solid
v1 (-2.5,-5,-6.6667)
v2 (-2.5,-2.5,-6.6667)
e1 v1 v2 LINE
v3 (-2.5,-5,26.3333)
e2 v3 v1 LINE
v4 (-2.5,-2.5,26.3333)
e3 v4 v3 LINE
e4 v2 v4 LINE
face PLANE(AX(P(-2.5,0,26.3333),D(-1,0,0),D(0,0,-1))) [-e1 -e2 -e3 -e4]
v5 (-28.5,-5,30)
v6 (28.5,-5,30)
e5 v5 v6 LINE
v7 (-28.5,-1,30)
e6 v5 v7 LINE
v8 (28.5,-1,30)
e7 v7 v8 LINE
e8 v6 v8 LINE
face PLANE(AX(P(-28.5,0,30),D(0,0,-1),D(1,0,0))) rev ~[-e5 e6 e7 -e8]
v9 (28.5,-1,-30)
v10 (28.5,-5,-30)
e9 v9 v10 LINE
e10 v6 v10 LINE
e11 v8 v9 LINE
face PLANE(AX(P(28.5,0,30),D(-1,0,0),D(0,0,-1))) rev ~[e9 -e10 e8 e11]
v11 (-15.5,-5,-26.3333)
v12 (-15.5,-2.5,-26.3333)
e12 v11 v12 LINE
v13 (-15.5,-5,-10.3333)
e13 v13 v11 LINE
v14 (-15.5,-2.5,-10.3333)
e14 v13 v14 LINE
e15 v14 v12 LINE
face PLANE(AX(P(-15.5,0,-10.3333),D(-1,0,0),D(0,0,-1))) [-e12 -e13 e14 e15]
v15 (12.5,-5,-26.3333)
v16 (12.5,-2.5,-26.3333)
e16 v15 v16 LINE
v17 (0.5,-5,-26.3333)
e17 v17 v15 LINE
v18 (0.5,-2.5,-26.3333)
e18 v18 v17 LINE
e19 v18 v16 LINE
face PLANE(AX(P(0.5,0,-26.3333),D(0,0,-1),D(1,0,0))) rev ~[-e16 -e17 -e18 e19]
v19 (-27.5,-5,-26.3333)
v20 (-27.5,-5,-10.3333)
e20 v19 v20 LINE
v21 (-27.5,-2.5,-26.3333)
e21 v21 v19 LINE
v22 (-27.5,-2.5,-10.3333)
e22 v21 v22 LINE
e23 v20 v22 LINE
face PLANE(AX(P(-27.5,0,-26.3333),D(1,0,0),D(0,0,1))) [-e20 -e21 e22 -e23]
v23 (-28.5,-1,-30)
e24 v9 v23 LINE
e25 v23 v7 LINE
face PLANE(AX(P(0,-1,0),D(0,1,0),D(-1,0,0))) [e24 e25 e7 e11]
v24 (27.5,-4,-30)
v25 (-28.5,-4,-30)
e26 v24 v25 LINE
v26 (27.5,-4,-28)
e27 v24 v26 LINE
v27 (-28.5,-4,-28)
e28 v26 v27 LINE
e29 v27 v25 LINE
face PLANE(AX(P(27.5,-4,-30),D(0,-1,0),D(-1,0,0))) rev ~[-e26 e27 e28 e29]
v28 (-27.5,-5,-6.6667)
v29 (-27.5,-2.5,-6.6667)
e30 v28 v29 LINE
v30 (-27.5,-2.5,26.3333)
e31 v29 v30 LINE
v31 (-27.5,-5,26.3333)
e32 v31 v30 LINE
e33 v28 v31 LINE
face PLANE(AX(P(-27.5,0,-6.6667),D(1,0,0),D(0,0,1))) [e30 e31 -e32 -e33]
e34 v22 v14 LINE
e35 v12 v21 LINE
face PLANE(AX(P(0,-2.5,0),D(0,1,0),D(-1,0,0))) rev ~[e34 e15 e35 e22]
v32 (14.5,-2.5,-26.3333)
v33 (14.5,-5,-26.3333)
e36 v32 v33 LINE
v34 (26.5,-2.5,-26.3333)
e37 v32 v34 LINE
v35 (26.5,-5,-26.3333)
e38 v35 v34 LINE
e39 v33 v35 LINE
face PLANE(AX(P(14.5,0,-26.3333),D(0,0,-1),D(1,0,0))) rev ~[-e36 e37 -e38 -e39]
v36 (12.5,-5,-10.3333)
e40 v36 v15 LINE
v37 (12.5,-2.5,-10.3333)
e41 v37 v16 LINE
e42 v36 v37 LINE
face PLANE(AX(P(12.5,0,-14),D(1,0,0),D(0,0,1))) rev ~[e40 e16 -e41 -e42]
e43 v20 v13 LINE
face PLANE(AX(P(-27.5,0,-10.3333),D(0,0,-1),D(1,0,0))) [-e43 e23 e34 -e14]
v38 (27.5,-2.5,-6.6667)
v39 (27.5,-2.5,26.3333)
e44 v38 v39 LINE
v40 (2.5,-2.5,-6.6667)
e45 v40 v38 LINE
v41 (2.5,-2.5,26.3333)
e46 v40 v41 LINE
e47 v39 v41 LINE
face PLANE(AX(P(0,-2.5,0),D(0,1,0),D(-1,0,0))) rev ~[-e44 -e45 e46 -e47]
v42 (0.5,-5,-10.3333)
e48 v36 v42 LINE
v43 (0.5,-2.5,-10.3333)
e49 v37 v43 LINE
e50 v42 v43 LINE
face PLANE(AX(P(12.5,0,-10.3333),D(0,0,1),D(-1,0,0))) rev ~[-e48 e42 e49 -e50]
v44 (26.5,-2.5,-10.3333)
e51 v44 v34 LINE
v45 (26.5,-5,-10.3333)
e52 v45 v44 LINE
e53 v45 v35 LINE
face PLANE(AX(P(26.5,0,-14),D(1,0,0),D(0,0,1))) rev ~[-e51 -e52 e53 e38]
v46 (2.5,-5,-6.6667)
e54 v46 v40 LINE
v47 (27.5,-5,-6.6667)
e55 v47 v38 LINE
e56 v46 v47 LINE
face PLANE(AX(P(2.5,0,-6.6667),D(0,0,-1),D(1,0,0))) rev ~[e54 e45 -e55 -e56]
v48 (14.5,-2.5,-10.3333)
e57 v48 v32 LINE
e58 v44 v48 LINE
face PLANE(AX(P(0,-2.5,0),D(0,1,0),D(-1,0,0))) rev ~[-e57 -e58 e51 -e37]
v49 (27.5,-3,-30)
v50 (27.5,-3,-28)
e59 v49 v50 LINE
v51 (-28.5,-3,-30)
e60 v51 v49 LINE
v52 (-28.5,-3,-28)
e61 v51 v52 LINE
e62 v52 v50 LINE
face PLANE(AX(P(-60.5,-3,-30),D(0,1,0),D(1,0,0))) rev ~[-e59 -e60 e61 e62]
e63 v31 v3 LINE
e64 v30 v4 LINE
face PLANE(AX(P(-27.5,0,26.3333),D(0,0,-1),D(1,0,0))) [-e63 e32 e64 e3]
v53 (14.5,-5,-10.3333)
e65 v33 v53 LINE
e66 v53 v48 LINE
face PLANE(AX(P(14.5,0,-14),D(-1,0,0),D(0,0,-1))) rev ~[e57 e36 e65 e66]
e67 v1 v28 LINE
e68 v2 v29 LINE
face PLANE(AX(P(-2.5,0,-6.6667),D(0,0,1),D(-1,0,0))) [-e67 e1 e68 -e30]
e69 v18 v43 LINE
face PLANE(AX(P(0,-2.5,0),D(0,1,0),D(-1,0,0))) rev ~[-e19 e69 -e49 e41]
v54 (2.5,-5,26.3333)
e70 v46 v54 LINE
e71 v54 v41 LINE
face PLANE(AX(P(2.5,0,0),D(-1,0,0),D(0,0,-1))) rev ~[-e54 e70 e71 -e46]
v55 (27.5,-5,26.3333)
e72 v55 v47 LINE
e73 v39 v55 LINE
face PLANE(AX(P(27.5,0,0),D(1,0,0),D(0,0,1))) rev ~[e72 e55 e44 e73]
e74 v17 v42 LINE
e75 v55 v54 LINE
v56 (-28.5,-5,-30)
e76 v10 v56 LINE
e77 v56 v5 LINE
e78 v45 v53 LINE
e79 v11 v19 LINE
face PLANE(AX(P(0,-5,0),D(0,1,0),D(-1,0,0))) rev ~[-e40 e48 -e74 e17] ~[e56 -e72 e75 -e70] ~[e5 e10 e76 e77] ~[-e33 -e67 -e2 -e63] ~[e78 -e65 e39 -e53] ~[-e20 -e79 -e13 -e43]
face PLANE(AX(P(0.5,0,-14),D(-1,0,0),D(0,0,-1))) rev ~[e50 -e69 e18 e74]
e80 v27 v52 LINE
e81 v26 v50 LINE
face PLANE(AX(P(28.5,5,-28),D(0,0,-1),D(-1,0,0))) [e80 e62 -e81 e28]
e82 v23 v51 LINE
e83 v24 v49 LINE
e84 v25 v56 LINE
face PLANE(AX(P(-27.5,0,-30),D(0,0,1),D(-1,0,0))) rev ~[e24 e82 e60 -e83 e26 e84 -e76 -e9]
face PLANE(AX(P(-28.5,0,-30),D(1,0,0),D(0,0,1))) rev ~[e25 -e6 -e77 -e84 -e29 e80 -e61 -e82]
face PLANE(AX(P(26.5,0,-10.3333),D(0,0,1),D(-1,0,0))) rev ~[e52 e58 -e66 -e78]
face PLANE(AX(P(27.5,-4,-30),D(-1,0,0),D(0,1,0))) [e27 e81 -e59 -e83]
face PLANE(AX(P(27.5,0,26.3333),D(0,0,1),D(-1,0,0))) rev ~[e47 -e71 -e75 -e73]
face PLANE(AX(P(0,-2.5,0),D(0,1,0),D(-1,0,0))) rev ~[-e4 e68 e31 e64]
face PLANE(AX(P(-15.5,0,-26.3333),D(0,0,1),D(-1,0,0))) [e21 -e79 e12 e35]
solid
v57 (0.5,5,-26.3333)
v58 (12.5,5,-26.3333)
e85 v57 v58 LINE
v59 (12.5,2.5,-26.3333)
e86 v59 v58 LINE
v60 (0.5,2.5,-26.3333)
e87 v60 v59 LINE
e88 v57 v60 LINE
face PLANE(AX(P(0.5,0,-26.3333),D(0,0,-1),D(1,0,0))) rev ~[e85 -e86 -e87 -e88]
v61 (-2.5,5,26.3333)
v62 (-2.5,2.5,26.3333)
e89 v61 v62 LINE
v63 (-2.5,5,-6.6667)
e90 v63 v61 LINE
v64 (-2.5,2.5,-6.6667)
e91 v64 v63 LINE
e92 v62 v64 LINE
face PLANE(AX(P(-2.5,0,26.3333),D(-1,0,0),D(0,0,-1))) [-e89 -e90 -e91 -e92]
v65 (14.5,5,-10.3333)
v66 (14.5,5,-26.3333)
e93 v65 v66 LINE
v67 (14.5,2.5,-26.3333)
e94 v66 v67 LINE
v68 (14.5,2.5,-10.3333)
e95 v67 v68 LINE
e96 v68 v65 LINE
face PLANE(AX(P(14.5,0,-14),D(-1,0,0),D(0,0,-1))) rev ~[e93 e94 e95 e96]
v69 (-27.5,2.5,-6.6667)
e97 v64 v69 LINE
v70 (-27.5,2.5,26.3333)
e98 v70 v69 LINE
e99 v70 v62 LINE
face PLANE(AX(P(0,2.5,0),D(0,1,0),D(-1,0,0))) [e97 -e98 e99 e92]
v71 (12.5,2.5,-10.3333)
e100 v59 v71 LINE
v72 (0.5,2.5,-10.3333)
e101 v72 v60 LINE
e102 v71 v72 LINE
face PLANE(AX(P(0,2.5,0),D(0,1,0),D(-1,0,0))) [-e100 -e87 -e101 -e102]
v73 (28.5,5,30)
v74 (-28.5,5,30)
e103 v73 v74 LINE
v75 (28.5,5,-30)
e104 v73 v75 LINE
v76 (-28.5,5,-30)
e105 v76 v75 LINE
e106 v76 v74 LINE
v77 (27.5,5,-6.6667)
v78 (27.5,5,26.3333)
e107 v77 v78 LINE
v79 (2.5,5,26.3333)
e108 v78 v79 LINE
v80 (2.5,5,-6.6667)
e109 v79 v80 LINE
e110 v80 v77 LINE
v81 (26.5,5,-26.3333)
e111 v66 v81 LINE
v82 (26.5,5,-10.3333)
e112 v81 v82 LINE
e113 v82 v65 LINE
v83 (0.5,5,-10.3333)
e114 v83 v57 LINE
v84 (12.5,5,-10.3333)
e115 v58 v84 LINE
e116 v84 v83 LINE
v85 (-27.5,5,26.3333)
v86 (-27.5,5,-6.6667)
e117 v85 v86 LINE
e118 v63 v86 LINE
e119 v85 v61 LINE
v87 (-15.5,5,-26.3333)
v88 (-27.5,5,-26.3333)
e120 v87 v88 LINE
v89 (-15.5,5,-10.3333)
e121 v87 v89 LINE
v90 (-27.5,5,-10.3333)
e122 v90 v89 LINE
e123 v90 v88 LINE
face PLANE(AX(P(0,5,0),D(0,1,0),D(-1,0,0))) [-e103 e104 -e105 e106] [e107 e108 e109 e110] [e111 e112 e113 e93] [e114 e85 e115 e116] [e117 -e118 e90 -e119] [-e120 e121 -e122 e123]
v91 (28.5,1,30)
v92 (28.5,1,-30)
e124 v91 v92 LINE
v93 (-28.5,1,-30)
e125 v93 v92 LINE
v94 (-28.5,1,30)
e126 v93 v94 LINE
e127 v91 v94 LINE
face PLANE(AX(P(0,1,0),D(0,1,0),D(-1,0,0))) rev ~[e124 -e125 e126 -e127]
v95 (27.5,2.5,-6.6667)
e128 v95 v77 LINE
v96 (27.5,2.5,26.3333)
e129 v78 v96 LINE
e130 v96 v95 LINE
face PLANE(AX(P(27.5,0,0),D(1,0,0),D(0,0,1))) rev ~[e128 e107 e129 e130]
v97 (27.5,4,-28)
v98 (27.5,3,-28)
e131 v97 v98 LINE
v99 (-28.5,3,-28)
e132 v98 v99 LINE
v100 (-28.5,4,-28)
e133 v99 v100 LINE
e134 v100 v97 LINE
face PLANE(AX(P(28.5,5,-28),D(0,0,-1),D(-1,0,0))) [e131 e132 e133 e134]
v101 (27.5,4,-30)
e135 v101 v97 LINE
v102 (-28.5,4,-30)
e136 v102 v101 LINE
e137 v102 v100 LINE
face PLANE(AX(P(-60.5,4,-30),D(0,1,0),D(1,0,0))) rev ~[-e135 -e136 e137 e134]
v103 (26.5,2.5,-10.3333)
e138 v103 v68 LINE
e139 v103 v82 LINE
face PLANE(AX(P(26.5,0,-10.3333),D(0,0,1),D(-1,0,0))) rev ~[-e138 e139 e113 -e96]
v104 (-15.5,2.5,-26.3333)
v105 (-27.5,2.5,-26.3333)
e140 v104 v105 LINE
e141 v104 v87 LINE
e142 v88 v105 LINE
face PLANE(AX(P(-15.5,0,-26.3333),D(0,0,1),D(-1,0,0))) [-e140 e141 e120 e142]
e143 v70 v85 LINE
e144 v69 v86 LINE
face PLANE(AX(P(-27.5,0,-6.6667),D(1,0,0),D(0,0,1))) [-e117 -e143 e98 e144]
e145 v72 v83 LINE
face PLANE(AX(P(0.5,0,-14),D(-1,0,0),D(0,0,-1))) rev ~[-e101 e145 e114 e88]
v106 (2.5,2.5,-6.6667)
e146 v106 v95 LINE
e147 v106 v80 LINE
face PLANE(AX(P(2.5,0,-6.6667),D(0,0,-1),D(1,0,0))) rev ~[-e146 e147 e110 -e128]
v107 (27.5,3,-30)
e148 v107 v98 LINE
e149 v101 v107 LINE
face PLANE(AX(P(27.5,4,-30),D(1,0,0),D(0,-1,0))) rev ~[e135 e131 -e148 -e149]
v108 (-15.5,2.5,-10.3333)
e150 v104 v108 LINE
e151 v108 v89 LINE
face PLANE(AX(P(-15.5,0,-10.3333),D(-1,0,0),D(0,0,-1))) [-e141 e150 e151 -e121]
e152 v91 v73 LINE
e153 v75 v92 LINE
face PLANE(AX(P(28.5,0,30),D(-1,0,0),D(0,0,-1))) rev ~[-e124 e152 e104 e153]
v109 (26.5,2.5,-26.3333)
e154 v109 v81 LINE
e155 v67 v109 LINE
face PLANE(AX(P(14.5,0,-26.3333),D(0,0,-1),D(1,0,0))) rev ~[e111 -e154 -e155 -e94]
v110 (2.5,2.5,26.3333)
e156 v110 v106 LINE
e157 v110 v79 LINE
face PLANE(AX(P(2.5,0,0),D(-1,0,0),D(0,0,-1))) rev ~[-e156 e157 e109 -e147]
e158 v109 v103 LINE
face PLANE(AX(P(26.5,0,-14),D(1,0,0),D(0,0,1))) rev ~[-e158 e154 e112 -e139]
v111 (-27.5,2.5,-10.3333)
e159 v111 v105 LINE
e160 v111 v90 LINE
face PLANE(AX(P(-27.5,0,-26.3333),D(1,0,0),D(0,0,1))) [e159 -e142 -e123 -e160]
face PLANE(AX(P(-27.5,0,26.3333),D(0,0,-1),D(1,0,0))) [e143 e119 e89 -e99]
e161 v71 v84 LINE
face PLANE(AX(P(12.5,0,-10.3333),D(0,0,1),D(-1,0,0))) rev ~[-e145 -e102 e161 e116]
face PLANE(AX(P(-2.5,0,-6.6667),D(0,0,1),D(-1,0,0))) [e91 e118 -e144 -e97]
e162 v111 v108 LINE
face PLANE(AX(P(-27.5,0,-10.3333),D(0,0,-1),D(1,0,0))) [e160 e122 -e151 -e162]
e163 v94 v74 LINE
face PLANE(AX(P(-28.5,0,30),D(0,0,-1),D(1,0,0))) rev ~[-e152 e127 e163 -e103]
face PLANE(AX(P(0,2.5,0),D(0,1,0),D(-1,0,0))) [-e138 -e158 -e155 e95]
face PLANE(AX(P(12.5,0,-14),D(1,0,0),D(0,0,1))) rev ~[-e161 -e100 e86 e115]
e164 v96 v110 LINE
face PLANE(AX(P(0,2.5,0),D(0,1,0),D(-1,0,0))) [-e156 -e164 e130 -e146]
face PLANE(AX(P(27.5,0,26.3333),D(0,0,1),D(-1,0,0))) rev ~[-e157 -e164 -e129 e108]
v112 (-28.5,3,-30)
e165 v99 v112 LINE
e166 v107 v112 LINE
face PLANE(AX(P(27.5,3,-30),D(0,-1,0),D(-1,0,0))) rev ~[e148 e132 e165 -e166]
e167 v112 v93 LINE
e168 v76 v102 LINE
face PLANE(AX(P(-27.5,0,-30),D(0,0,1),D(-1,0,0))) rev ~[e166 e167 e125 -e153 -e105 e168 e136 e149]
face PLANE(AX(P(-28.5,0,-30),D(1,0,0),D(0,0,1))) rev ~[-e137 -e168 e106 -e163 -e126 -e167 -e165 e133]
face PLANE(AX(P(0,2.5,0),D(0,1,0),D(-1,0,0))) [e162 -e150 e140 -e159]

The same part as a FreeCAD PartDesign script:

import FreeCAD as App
import Part
import Sketcher
from FreeCAD import Vector


def add_polygon(sketch, points):
    """Adds a closed chain of lines whose ends are joined by coincident constraints."""
    first, n = sketch.GeometryCount, len(points)
    for a, b in zip(points, points[1:] + points[:1]):
        sketch.addGeometry(Part.LineSegment(App.Vector(*a, 0), App.Vector(*b, 0)), False)
    for i in range(n):
        sketch.addConstraint(Sketcher.Constraint("Coincident", first + i, 2, first + (i + 1) % n, 1))

doc = App.newDocument("Part")
body = doc.addObject("PartDesign::Body", "Body")
body.AllowCompound = True

# Sketch on XZ plane
sketch1 = body.newObject("Sketcher::SketchObject", "Sketch")
sketch1.AttachmentSupport = (doc.getObject("XZ_Plane"), [""])
sketch1.MapMode = "FlatFace"
add_polygon(sketch1, [(-28, -30), (-28, 30), (28, 30), (28, -30)])  # lines 0-3
add_polygon(sketch1, [(-28, -26), (-16, -26), (-16, -10), (-28, -10)])  # lines 4-7
add_polygon(sketch1, [(0, -26), (12, -26), (12, -10), (0, -10)])  # lines 8-11
add_polygon(sketch1, [(14, -26), (26, -26), (26, -10), (14, -10)])  # lines 12-15
add_polygon(sketch1, [(28, 26), (2, 26), (2, -7), (28, -7)])  # lines 16-19
add_polygon(sketch1, [(-2, 26), (-28, 26), (-28, -7), (-2, -7)])  # lines 20-23
sketch1.addConstraint([
    Sketcher.Constraint("Vertical", 0),
    Sketcher.Constraint("Horizontal", 1),
    Sketcher.Constraint("Vertical", 2),
    Sketcher.Constraint("Horizontal", 3),
    Sketcher.Constraint("Horizontal", 4),
    Sketcher.Constraint("Vertical", 5),
    Sketcher.Constraint("Horizontal", 6),
    Sketcher.Constraint("Vertical", 7),
    Sketcher.Constraint("Horizontal", 8),
    Sketcher.Constraint("Vertical", 9),
    Sketcher.Constraint("Horizontal", 10),
    Sketcher.Constraint("Vertical", 11),
    Sketcher.Constraint("Horizontal", 12),
    Sketcher.Constraint("Vertical", 13),
    Sketcher.Constraint("Horizontal", 14),
    Sketcher.Constraint("Vertical", 15),
    Sketcher.Constraint("Horizontal", 16),
    Sketcher.Constraint("Vertical", 17),
    Sketcher.Constraint("Horizontal", 18),
    Sketcher.Constraint("Vertical", 19),
    Sketcher.Constraint("Horizontal", 20),
    Sketcher.Constraint("Vertical", 21),
    Sketcher.Constraint("Horizontal", 22),
    Sketcher.Constraint("Vertical", 23),
    Sketcher.Constraint("Symmetric", 0, 2, 2, 2, -1, 1),
    Sketcher.Constraint("Symmetric", 7, 2, 19, 2, -1, 1),
    Sketcher.Constraint("Symmetric", 19, 2, 20, 2, -2),
    Sketcher.Constraint("Symmetric", 17, 2, 22, 2, -2),
    Sketcher.Constraint("Horizontal", 7, 2, 8, 2),
    Sketcher.Constraint("Horizontal", 6, 2, 9, 2),
    Sketcher.Constraint("Horizontal", 11, 2, 12, 2),
    Sketcher.Constraint("Horizontal", 10, 2, 13, 2),
    Sketcher.Constraint("Equal", 6, 8),
    Sketcher.Constraint("Equal", 10, 12),
    Sketcher.Constraint("DistanceX", 1, 1, 1, 2, 57.0),
    Sketcher.Constraint("DistanceX", 4, 1, 4, 2, 12.0),
    Sketcher.Constraint("DistanceX", 16, 2, 16, 1, 25.0),
    Sketcher.Constraint("DistanceY", 0, 1, 0, 2, 60.0),
    Sketcher.Constraint("DistanceY", 5, 1, 5, 2, 16.0),
    Sketcher.Constraint("DistanceY", 17, 2, 17, 1, 33.0),
    Sketcher.Constraint("DistanceX", 8, 2, 2, 2, 16.0),
    Sketcher.Constraint("DistanceX", 5, 2, 10, 2, 16.0),
    Sketcher.Constraint("DistanceX", 12, 2, 2, 2, 2.0),
    Sketcher.Constraint("DistanceY", 4, 2, -1, 1, 26.3333),
])
pad1 = body.newObject("PartDesign::Pad", "Pad")
pad1.Profile = sketch1
pad1.Length = 10
pad1.Midplane = True

# Sketch on XZ plane
sketch2 = body.newObject("Sketcher::SketchObject", "Sketch001")
sketch2.AttachmentSupport = (doc.getObject("XZ_Plane"), [""])
sketch2.MapMode = "FlatFace"
add_polygon(sketch2, [(-28, 26), (-2, 26), (-2, -7), (-28, -7)])  # lines 0-3
add_polygon(sketch2, [(-16, -26), (-28, -26), (-28, -10), (-16, -10)])  # lines 4-7
add_polygon(sketch2, [(2, 26), (28, 26), (28, -7), (2, -7)])  # lines 8-11
add_polygon(sketch2, [(12, -26), (0, -26), (0, -10), (12, -10)])  # lines 12-15
add_polygon(sketch2, [(26, -26), (14, -26), (14, -10), (26, -10)])  # lines 16-19
sketch2.addConstraint([
    Sketcher.Constraint("Horizontal", 0),
    Sketcher.Constraint("Vertical", 1),
    Sketcher.Constraint("Horizontal", 2),
    Sketcher.Constraint("Vertical", 3),
    Sketcher.Constraint("Horizontal", 4),
    Sketcher.Constraint("Vertical", 5),
    Sketcher.Constraint("Horizontal", 6),
    Sketcher.Constraint("Vertical", 7),
    Sketcher.Constraint("Horizontal", 8),
    Sketcher.Constraint("Vertical", 9),
    Sketcher.Constraint("Horizontal", 10),
    Sketcher.Constraint("Vertical", 11),
    Sketcher.Constraint("Horizontal", 12),
    Sketcher.Constraint("Vertical", 13),
    Sketcher.Constraint("Horizontal", 14),
    Sketcher.Constraint("Vertical", 15),
    Sketcher.Constraint("Horizontal", 16),
    Sketcher.Constraint("Vertical", 17),
    Sketcher.Constraint("Horizontal", 18),
    Sketcher.Constraint("Vertical", 19),
    Sketcher.Constraint("Symmetric", 4, 2, 8, 2, -1, 1),
    Sketcher.Constraint("Symmetric", 3, 2, 8, 2, -2),
    Sketcher.Constraint("Symmetric", 1, 2, 10, 2, -2),
    Sketcher.Constraint("Horizontal", 7, 2, 12, 2),
    Sketcher.Constraint("Horizontal", 6, 2, 13, 2),
    Sketcher.Constraint("Horizontal", 15, 2, 16, 2),
    Sketcher.Constraint("Horizontal", 14, 2, 17, 2),
    Sketcher.Constraint("Equal", 6, 12),
    Sketcher.Constraint("Equal", 14, 16),
    Sketcher.Constraint("DistanceX", 0, 1, 0, 2, 25.0),
    Sketcher.Constraint("DistanceX", 4, 2, 4, 1, 12.0),
    Sketcher.Constraint("DistanceY", 1, 2, 1, 1, 33.0),
    Sketcher.Constraint("DistanceY", 5, 1, 5, 2, 16.0),
    Sketcher.Constraint("DistanceX", 0, 2, 8, 2, 30.0),
    Sketcher.Constraint("DistanceX", 7, 2, 12, 2, 16.0),
    Sketcher.Constraint("DistanceX", 15, 2, 16, 2, 2.0),
    Sketcher.Constraint("DistanceY", -1, 1, 0, 2, 26.3333),
])
pad2 = body.newObject("PartDesign::Pad", "Pad001")
pad2.Profile = sketch2
pad2.Length = 5
pad2.Midplane = True

# Sketch on XY plane
sketch3 = body.newObject("Sketcher::SketchObject", "Sketch002")
sketch3.AttachmentSupport = (doc.getObject("XY_Plane"), [""])
sketch3.MapMode = "FlatFace"
sketch3.AttachmentOffset = App.Placement(Vector(0, 0, -30), App.Rotation())
add_polygon(sketch3, [(27.5, 3), (-60.5, 3), (-60.5, 4), (27.5, 4)])  # lines 0-3
add_polygon(sketch3, [(-60.5, -4), (-60.5, -3), (27.5, -3), (27.5, -4)])  # lines 4-7
sketch3.addConstraint([
    Sketcher.Constraint("Horizontal", 0),
    Sketcher.Constraint("Vertical", 1),
    Sketcher.Constraint("Horizontal", 2),
    Sketcher.Constraint("Vertical", 3),
    Sketcher.Constraint("Vertical", 4),
    Sketcher.Constraint("Horizontal", 5),
    Sketcher.Constraint("Vertical", 6),
    Sketcher.Constraint("Horizontal", 7),
    Sketcher.Constraint("Symmetric", 0, 2, 4, 2, -1),
    Sketcher.Constraint("Symmetric", 2, 2, 6, 2, -1),
    Sketcher.Constraint("DistanceX", 0, 2, 0, 1, 88.0),
    Sketcher.Constraint("DistanceY", 1, 1, 1, 2, 1.0),
    Sketcher.Constraint("DistanceY", -1, 1, 0, 2, 3.0),
    Sketcher.Constraint("DistanceX", 0, 2, -1, 1, 60.5),
])
pocket1 = body.newObject("PartDesign::Pocket", "Pocket")
pocket1.Profile = sketch3
pocket1.Length = 2
pocket1.Reversed = True

# Sketch on XZ plane
sketch4 = body.newObject("Sketcher::SketchObject", "Sketch003")
sketch4.AttachmentSupport = (doc.getObject("XZ_Plane"), [""])
sketch4.MapMode = "FlatFace"
add_polygon(sketch4, [(-28, -30), (-28, 30), (28, 30), (28, -30)])  # lines 0-3
sketch4.addConstraint([
    Sketcher.Constraint("Vertical", 0),
    Sketcher.Constraint("Horizontal", 1),
    Sketcher.Constraint("Vertical", 2),
    Sketcher.Constraint("Horizontal", 3),
    Sketcher.Constraint("Symmetric", 0, 2, 2, 2, -1, 1),
    Sketcher.Constraint("DistanceX", 1, 1, 1, 2, 57.0),
    Sketcher.Constraint("DistanceY", 0, 1, 0, 2, 60.0),
])
pocket2 = body.newObject("PartDesign::Pocket", "Pocket001")
pocket2.Profile = sketch4
pocket2.Length = 2
pocket2.Midplane = True

# Sketch on XZ plane
sketch5 = body.newObject("Sketcher::SketchObject", "Sketch004")
sketch5.AttachmentSupport = (doc.getObject("XZ_Plane"), [""])
sketch5.MapMode = "FlatFace"
add_polygon(sketch5, [(-28, -30), (-28, 30), (28, 30), (28, -30)])  # lines 0-3
sketch5.addConstraint([
    Sketcher.Constraint("Vertical", 0),
    Sketcher.Constraint("Horizontal", 1),
    Sketcher.Constraint("Vertical", 2),
    Sketcher.Constraint("Horizontal", 3),
    Sketcher.Constraint("Symmetric", 0, 2, 2, 2, -1, 1),
    Sketcher.Constraint("DistanceX", 1, 1, 1, 2, 57.0),
    Sketcher.Constraint("DistanceY", 0, 1, 0, 2, 60.0),
])
pocket3 = body.newObject("PartDesign::Pocket", "Pocket002")
pocket3.Profile = sketch5
pocket3.Length = 1
pocket3.Midplane = True

doc.recompute()
